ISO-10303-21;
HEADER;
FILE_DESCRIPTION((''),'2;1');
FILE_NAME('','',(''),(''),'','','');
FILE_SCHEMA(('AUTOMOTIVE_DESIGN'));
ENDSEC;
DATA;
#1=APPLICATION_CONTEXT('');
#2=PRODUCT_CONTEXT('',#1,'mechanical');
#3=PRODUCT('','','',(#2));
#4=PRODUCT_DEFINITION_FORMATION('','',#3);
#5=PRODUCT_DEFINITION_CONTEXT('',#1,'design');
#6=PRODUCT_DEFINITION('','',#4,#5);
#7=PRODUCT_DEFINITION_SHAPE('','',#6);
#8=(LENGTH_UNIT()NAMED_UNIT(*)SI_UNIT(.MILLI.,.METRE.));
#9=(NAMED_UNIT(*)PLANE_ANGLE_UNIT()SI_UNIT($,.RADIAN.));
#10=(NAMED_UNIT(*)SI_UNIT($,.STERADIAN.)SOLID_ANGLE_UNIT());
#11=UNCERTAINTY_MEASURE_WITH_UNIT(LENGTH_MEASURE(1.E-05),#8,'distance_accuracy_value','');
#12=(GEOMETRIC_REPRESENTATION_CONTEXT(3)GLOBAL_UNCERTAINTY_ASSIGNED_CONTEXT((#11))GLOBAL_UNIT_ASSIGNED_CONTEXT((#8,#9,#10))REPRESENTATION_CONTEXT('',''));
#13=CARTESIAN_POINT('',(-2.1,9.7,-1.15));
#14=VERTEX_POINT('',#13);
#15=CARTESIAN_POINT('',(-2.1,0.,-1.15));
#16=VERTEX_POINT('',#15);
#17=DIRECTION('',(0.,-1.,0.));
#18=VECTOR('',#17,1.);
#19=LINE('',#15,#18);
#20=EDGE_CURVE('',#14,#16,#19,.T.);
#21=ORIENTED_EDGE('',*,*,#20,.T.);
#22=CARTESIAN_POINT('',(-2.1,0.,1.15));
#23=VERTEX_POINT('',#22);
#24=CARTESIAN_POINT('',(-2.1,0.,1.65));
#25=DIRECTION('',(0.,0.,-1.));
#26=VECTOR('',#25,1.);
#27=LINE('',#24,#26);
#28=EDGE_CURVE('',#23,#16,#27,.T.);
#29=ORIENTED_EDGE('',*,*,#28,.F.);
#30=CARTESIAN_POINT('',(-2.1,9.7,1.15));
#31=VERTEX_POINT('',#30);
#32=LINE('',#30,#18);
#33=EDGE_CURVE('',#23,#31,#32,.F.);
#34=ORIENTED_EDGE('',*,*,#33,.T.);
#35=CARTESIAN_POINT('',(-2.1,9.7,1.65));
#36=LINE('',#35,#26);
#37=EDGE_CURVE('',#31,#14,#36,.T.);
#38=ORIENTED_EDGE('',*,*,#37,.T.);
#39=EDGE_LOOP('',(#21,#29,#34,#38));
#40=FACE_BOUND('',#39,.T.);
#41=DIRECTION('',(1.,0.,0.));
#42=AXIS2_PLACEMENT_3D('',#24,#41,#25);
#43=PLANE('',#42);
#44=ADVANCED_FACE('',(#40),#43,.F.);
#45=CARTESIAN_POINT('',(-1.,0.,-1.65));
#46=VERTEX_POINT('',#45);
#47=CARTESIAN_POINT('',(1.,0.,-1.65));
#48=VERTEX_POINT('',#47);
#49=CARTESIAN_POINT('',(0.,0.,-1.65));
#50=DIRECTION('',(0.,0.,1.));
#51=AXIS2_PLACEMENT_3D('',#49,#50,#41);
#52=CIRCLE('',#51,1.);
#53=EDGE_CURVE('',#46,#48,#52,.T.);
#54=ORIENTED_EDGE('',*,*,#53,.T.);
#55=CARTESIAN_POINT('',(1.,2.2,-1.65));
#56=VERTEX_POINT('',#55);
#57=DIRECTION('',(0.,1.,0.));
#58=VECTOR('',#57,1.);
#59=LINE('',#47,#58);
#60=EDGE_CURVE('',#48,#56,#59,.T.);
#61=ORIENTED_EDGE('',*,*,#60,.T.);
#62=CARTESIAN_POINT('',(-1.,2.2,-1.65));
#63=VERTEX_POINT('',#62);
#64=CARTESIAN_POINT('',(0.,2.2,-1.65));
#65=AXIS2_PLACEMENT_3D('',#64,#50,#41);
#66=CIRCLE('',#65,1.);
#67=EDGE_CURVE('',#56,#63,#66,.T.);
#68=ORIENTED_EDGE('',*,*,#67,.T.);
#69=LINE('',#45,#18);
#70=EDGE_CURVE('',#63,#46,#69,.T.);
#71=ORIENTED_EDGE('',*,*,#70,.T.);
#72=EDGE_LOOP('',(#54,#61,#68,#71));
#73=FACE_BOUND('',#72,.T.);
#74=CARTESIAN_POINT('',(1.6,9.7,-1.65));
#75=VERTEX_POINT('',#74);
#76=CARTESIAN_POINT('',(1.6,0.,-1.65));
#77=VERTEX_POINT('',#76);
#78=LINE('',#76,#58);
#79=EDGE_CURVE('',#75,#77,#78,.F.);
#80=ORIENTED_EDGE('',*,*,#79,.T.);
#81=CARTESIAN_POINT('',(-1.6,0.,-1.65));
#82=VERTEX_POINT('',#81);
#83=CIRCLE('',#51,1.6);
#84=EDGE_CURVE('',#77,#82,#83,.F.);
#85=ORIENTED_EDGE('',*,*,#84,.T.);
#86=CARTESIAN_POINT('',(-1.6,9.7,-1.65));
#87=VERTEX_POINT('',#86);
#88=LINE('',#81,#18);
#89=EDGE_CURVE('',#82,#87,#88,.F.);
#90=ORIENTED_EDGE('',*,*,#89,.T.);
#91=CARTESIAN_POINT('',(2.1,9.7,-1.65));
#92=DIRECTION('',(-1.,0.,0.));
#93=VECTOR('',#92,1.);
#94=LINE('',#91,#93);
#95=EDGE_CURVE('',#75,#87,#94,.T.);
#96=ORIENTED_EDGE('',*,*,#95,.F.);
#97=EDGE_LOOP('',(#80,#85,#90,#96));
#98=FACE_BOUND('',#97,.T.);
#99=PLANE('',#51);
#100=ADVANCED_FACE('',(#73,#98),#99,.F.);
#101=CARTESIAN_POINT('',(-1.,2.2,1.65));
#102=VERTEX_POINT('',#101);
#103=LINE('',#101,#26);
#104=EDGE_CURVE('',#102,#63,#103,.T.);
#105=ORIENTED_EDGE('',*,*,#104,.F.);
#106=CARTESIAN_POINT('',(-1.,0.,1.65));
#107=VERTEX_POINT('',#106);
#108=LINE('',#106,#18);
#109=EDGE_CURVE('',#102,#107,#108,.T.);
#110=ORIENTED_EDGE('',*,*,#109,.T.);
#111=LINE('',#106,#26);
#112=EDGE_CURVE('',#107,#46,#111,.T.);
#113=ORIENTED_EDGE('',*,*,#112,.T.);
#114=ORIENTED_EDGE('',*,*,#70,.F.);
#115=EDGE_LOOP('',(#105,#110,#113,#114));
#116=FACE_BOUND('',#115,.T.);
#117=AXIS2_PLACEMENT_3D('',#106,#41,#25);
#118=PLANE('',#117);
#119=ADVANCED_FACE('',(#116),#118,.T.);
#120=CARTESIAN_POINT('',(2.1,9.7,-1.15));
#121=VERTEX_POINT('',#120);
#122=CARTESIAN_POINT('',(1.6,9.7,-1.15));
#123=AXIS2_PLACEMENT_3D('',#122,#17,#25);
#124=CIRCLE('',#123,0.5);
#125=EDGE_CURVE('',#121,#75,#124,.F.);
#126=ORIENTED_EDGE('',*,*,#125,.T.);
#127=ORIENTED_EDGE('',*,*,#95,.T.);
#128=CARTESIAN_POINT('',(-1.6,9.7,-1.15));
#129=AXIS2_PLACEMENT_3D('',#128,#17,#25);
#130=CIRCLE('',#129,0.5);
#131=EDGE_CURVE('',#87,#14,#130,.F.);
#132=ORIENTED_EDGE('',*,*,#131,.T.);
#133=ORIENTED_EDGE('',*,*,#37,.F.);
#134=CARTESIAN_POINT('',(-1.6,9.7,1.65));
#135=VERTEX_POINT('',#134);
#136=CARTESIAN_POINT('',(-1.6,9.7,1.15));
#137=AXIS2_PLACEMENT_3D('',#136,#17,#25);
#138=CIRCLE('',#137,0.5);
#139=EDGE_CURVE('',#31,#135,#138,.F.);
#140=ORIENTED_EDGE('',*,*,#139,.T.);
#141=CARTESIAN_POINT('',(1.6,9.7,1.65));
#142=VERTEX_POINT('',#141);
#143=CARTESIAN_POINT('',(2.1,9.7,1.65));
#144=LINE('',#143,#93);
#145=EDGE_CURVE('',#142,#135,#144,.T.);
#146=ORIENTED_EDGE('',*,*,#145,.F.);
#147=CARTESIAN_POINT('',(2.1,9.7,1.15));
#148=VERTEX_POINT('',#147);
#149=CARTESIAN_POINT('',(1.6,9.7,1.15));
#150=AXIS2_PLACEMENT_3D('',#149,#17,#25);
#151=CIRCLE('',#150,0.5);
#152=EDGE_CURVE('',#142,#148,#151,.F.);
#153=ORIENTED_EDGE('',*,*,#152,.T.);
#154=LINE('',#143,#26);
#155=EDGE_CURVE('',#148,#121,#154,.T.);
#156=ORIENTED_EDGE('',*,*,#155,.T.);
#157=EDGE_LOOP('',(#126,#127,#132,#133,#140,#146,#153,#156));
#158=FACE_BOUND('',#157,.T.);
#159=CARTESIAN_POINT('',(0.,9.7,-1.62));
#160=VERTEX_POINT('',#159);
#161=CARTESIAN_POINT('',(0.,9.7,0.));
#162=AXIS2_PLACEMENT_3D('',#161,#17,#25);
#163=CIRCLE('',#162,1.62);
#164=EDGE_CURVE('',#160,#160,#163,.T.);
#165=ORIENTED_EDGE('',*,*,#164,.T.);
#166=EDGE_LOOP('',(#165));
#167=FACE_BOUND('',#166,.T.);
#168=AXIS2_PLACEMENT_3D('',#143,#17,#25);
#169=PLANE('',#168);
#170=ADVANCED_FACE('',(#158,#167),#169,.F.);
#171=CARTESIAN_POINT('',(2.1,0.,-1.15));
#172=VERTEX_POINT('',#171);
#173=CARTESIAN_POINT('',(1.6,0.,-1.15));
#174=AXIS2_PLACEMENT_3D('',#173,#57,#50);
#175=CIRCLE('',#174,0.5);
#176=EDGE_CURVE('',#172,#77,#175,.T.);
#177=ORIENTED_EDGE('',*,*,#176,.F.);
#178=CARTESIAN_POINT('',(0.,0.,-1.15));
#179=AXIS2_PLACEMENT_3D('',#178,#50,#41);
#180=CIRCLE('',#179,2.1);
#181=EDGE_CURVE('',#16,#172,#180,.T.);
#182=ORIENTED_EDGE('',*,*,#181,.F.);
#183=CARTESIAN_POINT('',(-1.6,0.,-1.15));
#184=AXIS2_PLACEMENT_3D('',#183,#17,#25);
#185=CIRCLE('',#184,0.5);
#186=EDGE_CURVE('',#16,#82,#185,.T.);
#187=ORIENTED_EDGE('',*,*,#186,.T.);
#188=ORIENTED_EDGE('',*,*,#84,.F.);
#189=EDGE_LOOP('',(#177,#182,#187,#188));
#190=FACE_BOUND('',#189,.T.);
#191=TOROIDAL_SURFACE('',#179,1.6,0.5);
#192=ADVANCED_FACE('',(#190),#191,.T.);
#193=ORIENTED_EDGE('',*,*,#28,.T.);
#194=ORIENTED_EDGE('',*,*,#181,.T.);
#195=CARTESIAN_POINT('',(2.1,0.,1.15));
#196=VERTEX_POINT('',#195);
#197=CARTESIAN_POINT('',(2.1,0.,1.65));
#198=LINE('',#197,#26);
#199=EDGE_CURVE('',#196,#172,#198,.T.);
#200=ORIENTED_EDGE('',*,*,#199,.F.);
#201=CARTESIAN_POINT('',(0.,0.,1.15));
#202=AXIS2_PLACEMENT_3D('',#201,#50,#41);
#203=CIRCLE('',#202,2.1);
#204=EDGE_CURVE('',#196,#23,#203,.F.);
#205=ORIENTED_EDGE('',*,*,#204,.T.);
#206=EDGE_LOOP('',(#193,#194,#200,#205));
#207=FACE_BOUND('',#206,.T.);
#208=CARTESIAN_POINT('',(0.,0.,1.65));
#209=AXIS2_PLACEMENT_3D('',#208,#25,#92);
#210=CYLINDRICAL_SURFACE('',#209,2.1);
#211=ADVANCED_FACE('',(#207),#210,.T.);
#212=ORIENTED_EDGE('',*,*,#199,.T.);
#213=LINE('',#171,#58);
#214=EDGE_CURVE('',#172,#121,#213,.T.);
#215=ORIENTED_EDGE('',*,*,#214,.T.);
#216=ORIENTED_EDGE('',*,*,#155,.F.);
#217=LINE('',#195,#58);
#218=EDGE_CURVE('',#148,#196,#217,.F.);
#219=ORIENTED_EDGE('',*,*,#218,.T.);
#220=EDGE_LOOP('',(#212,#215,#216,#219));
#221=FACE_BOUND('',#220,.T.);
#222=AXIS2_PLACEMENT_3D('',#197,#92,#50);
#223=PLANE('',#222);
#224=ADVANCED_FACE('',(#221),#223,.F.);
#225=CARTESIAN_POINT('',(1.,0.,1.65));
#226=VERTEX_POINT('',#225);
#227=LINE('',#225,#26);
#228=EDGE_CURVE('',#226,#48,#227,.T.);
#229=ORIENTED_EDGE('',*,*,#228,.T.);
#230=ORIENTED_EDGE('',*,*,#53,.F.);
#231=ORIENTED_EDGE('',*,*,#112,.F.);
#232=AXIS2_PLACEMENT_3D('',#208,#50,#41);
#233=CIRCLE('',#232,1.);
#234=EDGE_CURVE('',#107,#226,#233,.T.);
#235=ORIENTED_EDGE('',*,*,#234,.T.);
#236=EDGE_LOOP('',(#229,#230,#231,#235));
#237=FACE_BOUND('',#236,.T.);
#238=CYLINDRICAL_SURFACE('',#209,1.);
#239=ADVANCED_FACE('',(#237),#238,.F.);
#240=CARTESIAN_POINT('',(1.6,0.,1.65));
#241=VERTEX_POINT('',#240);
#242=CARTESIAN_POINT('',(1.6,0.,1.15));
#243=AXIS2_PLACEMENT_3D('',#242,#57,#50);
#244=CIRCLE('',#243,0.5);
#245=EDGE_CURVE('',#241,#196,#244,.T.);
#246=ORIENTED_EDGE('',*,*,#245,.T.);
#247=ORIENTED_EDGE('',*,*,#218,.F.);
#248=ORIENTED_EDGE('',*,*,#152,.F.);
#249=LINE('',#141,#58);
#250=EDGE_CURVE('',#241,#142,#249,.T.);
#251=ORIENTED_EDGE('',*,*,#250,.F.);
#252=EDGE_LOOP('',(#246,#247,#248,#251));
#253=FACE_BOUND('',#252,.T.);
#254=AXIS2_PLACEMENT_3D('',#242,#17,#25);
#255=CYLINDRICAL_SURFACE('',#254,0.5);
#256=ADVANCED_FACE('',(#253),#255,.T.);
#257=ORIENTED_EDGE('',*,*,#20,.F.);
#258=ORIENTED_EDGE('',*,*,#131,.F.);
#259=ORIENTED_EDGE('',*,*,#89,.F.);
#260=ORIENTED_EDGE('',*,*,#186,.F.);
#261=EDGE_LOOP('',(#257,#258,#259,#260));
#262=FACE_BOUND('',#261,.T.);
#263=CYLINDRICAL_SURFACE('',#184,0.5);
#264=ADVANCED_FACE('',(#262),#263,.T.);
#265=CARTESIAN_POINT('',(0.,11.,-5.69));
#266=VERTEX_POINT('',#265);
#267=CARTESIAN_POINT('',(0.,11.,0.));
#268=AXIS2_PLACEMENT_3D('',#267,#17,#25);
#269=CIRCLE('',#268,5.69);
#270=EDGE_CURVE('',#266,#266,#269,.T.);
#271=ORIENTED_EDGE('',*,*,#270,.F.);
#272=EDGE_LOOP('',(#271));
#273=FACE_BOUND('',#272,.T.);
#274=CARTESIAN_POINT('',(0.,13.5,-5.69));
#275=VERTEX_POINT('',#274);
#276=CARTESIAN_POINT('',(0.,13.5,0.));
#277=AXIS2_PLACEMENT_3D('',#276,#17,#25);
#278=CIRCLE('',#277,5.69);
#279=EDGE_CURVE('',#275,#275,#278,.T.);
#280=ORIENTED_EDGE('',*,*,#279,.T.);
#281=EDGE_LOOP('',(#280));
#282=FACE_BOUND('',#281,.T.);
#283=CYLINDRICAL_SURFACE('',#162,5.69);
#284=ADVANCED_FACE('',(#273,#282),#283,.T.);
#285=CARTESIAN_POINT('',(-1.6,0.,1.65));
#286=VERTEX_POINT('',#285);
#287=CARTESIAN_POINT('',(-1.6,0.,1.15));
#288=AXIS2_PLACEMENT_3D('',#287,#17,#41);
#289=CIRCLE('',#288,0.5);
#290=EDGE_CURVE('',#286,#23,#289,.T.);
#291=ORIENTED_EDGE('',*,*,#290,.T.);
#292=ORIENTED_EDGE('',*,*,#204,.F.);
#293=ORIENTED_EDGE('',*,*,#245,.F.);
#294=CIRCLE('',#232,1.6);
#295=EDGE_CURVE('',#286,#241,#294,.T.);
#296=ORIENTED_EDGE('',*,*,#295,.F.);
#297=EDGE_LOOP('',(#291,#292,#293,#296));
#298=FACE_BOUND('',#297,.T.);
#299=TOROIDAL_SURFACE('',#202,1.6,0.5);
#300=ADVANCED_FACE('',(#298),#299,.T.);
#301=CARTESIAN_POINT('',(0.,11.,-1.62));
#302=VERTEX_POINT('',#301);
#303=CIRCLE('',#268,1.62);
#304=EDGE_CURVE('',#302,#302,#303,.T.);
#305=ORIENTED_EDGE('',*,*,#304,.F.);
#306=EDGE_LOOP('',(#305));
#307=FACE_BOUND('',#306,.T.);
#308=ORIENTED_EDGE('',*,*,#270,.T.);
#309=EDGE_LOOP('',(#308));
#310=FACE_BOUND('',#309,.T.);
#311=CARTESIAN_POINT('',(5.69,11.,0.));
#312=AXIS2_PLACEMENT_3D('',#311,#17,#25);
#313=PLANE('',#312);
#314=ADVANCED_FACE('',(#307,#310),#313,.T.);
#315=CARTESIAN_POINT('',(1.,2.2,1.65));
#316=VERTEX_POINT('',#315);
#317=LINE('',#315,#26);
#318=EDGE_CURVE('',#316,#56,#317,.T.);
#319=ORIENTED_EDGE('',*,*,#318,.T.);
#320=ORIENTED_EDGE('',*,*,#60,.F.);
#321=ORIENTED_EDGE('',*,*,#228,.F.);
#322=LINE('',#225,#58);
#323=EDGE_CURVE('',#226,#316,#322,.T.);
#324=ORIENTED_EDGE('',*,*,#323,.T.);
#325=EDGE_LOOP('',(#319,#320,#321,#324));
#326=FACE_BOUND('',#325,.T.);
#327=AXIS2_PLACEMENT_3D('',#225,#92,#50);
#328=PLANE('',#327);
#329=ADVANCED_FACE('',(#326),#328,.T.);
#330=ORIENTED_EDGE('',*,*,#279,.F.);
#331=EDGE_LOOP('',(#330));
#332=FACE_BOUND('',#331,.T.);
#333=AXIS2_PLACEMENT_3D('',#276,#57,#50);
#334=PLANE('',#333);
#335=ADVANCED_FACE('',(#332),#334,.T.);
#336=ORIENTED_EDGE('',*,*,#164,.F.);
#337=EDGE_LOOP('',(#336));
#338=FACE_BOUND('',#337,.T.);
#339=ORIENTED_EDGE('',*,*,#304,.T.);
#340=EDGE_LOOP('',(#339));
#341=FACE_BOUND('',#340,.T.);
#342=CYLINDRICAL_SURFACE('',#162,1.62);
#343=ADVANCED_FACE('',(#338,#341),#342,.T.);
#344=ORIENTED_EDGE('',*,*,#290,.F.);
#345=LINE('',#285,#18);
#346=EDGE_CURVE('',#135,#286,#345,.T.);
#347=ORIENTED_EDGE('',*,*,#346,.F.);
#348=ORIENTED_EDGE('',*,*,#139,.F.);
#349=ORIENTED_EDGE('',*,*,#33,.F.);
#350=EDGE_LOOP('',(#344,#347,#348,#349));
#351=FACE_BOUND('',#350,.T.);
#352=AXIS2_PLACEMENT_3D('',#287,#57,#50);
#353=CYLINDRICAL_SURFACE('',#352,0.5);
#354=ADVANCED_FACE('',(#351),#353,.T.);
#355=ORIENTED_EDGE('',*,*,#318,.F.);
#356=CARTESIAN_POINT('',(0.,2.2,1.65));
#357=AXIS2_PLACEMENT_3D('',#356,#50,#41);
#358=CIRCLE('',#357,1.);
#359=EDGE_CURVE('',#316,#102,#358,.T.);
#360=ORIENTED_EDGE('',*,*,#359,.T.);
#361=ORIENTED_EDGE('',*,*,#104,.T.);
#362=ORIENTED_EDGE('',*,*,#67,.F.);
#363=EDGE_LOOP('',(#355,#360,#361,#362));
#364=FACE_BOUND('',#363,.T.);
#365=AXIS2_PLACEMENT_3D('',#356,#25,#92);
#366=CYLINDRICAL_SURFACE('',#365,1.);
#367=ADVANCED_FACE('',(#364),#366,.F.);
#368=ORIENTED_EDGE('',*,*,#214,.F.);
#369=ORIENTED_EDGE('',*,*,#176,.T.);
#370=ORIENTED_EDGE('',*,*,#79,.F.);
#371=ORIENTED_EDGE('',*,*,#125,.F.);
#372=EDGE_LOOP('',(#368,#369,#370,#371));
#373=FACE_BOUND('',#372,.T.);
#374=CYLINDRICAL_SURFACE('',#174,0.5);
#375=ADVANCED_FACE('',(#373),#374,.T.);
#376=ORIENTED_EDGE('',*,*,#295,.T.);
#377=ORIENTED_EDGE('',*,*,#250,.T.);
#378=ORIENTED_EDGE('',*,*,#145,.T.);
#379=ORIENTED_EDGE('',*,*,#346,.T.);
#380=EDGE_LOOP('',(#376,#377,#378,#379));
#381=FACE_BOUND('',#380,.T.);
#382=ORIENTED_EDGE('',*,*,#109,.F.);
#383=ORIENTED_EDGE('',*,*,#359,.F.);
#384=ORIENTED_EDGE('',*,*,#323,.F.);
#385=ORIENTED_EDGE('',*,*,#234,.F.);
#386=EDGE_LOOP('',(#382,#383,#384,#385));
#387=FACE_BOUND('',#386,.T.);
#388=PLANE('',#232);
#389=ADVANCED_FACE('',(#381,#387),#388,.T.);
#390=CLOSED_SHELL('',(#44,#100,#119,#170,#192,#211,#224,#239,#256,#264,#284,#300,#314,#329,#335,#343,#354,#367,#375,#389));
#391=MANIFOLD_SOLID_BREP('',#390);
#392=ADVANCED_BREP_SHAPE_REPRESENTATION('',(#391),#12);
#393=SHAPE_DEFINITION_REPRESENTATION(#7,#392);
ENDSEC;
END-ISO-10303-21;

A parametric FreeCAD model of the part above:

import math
import FreeCAD as App
import Part
import Sketcher


def edges_at(feature, points):
    """Names of the edges that pass closest to the given points."""
    edges = feature.Shape.Edges
    near = lambda p: min(range(len(edges)), key=lambda i: edges[i].distToShape(Part.Vertex(*p))[0])
    return sorted({f"Edge{near(p) + 1}" for p in points})

doc = App.newDocument("Part")
body = doc.addObject("PartDesign::Body", "Body")

# Sketch on XY plane
sketch1 = body.newObject("Sketcher::SketchObject", "Sketch")
sketch1.AttachmentSupport = (doc.getObject("XY_Plane"), [""])
sketch1.MapMode = "FlatFace"
sketch1.addGeometry(Part.LineSegment(App.Vector(2.1, 0, 0), App.Vector(2.1, 9.7, 0)), False)
sketch1.addGeometry(Part.LineSegment(App.Vector(2.1, 9.7, 0), App.Vector(-2.1, 9.7, 0)), False)
sketch1.addGeometry(Part.LineSegment(App.Vector(-2.1, 9.7, 0), App.Vector(-2.1, 0, 0)), False)
sketch1.addGeometry(Part.ArcOfCircle(Part.Circle(App.Vector(0, 0, 0), App.Vector(0, 0, 1), 2.1), math.radians(180), math.radians(360)), False)
sketch1.addGeometry(Part.LineSegment(App.Vector(1, 2.2, 0), App.Vector(1, 0, 0)), False)
sketch1.addGeometry(Part.ArcOfCircle(Part.Circle(App.Vector(0, 0, 0), App.Vector(0, 0, 1), 1), math.radians(180), math.radians(360)), False)
sketch1.addGeometry(Part.LineSegment(App.Vector(-1, 0, 0), App.Vector(-1, 2.2, 0)), False)
sketch1.addGeometry(Part.ArcOfCircle(Part.Circle(App.Vector(0, 2.2, 0), App.Vector(0, 0, 1), 1), math.radians(0), math.radians(180)), False)
sketch1.addConstraint(Sketcher.Constraint("Coincident", 0, 2, 1, 1))
sketch1.addConstraint(Sketcher.Constraint("Coincident", 1, 2, 2, 1))
sketch1.addConstraint(Sketcher.Constraint("Tangent", 2, 2, 3, 1))
sketch1.addConstraint(Sketcher.Constraint("Tangent", 3, 2, 0, 1))
sketch1.addConstraint(Sketcher.Constraint("Tangent", 4, 2, 5, 2))
sketch1.addConstraint(Sketcher.Constraint("Tangent", 5, 1, 6, 1))
sketch1.addConstraint(Sketcher.Constraint("Tangent", 6, 2, 7, 2))
sketch1.addConstraint(Sketcher.Constraint("Tangent", 7, 1, 4, 1))
sketch1.addConstraint(Sketcher.Constraint("Vertical", 0))
sketch1.addConstraint(Sketcher.Constraint("Horizontal", 1))
sketch1.addConstraint(Sketcher.Constraint("Vertical", 2))
sketch1.addConstraint(Sketcher.Constraint("Vertical", 4))
sketch1.addConstraint(Sketcher.Constraint("Vertical", 6))
sketch1.addConstraint(Sketcher.Constraint("Coincident", 3, 3, -1, 1))
sketch1.addConstraint(Sketcher.Constraint("Coincident", 5, 3, -1, 1))
sketch1.addConstraint(Sketcher.Constraint("Radius", 5, 1.0))
sketch1.addConstraint(Sketcher.Constraint("Radius", 3, 2.1))
sketch1.addConstraint(Sketcher.Constraint("DistanceY", 0, 1, 0, 2, 9.7))
sketch1.addConstraint(Sketcher.Constraint("DistanceY", 4, 2, 4, 1, 2.2))
pad1 = body.newObject("PartDesign::Pad", "Pad")
pad1.Profile = sketch1
pad1.Length = 3.3
pad1.Midplane = True

# Sketch on XY plane
sketch2 = body.newObject("Sketcher::SketchObject", "Sketch001")
sketch2.AttachmentSupport = (doc.getObject("XY_Plane"), [""])
sketch2.MapMode = "FlatFace"
sketch2.addGeometry(Part.LineSegment(App.Vector(5.7, 13.5, 0), App.Vector(0, 13.5, 0)), False)
sketch2.addGeometry(Part.LineSegment(App.Vector(0, 13.5, 0), App.Vector(0, 9.7, 0)), False)
sketch2.addGeometry(Part.LineSegment(App.Vector(0, 9.7, 0), App.Vector(1.6, 9.7, 0)), False)
sketch2.addGeometry(Part.LineSegment(App.Vector(1.6, 9.7, 0), App.Vector(1.6, 11, 0)), False)
sketch2.addGeometry(Part.LineSegment(App.Vector(1.6, 11, 0), App.Vector(5.7, 11, 0)), False)
sketch2.addGeometry(Part.LineSegment(App.Vector(5.7, 11, 0), App.Vector(5.7, 13.5, 0)), False)
sketch2.addConstraint(Sketcher.Constraint("Coincident", 0, 2, 1, 1))
sketch2.addConstraint(Sketcher.Constraint("Coincident", 1, 2, 2, 1))
sketch2.addConstraint(Sketcher.Constraint("Coincident", 2, 2, 3, 1))
sketch2.addConstraint(Sketcher.Constraint("Coincident", 3, 2, 4, 1))
sketch2.addConstraint(Sketcher.Constraint("Coincident", 4, 2, 5, 1))
sketch2.addConstraint(Sketcher.Constraint("Coincident", 5, 2, 0, 1))
sketch2.addConstraint(Sketcher.Constraint("Horizontal", 0))
sketch2.addConstraint(Sketcher.Constraint("Vertical", 1))
sketch2.addConstraint(Sketcher.Constraint("Horizontal", 2))
sketch2.addConstraint(Sketcher.Constraint("Vertical", 3))
sketch2.addConstraint(Sketcher.Constraint("Horizontal", 4))
sketch2.addConstraint(Sketcher.Constraint("Vertical", 5))
sketch2.addConstraint(Sketcher.Constraint("PointOnObject", 0, 2, -2))
sketch2.addConstraint(Sketcher.Constraint("DistanceY", 1, 2, 1, 1, 3.8))
sketch2.addConstraint(Sketcher.Constraint("DistanceY", 3, 1, 3, 2, 1.3))
sketch2.addConstraint(Sketcher.Constraint("DistanceY", -1, 1, 3, 2, 11.0))
sketch2.addConstraint(Sketcher.Constraint("DistanceX", 0, 2, 0, 1, 5.69))
sketch2.addConstraint(Sketcher.Constraint("DistanceX", 2, 1, 2, 2, 1.62))
revolution = body.newObject("PartDesign::Revolution", "Revolution")
revolution.Profile = sketch2
revolution.ReferenceAxis = (sketch2, ["V_Axis"])
revolution.Angle = 360
doc.recompute()

fillet = body.newObject("PartDesign::Fillet", "Fillet")
fillet.Base = (revolution, edges_at(revolution, [
    (2.1, 4.85, 1.65),
    (-2.1, 4.85, 1.65),
    (2.1, 4.85, -1.65),
    (0, -2.1, -1.65),
    (-2.1, 4.85, -1.65),
    (0, -2.1, 1.65),
]))
fillet.Radius = 0.5

doc.recompute()
